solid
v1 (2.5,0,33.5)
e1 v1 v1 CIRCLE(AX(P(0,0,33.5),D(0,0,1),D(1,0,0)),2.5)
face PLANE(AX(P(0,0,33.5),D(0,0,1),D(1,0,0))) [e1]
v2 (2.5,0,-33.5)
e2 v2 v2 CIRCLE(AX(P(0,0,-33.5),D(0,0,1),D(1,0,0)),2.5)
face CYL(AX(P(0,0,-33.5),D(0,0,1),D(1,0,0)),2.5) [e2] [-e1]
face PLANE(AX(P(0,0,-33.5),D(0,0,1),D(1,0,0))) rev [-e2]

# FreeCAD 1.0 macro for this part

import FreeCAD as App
import Part
import Sketcher

V = App.Vector
Q = App.Units.Quantity

doc = App.newDocument("Part")
body = doc.addObject("PartDesign::Body", "Body")

# Sketch on XY plane
sketch1 = body.newObject("Sketcher::SketchObject", "Sketch")
sketch1.AttachmentSupport = (doc.getObject("XY_Plane"), [""])
sketch1.MapMode = "FlatFace"
sketch1.addGeometry(Part.Circle(V(0, 0, 0), V(0, 0, 1), 2.5), False)
sketch1.addConstraint([
    Sketcher.Constraint("Coincident", 0, 3, -1, 1),
    Sketcher.Constraint("Diameter", 0, Q("5 mm")),
])
pad1 = body.newObject("PartDesign::Pad", "Pad")
pad1.Profile = sketch1
pad1.Type = "TwoLengths"
pad1.Length = 33.5
pad1.Length2 = 33.5

doc.recompute()
